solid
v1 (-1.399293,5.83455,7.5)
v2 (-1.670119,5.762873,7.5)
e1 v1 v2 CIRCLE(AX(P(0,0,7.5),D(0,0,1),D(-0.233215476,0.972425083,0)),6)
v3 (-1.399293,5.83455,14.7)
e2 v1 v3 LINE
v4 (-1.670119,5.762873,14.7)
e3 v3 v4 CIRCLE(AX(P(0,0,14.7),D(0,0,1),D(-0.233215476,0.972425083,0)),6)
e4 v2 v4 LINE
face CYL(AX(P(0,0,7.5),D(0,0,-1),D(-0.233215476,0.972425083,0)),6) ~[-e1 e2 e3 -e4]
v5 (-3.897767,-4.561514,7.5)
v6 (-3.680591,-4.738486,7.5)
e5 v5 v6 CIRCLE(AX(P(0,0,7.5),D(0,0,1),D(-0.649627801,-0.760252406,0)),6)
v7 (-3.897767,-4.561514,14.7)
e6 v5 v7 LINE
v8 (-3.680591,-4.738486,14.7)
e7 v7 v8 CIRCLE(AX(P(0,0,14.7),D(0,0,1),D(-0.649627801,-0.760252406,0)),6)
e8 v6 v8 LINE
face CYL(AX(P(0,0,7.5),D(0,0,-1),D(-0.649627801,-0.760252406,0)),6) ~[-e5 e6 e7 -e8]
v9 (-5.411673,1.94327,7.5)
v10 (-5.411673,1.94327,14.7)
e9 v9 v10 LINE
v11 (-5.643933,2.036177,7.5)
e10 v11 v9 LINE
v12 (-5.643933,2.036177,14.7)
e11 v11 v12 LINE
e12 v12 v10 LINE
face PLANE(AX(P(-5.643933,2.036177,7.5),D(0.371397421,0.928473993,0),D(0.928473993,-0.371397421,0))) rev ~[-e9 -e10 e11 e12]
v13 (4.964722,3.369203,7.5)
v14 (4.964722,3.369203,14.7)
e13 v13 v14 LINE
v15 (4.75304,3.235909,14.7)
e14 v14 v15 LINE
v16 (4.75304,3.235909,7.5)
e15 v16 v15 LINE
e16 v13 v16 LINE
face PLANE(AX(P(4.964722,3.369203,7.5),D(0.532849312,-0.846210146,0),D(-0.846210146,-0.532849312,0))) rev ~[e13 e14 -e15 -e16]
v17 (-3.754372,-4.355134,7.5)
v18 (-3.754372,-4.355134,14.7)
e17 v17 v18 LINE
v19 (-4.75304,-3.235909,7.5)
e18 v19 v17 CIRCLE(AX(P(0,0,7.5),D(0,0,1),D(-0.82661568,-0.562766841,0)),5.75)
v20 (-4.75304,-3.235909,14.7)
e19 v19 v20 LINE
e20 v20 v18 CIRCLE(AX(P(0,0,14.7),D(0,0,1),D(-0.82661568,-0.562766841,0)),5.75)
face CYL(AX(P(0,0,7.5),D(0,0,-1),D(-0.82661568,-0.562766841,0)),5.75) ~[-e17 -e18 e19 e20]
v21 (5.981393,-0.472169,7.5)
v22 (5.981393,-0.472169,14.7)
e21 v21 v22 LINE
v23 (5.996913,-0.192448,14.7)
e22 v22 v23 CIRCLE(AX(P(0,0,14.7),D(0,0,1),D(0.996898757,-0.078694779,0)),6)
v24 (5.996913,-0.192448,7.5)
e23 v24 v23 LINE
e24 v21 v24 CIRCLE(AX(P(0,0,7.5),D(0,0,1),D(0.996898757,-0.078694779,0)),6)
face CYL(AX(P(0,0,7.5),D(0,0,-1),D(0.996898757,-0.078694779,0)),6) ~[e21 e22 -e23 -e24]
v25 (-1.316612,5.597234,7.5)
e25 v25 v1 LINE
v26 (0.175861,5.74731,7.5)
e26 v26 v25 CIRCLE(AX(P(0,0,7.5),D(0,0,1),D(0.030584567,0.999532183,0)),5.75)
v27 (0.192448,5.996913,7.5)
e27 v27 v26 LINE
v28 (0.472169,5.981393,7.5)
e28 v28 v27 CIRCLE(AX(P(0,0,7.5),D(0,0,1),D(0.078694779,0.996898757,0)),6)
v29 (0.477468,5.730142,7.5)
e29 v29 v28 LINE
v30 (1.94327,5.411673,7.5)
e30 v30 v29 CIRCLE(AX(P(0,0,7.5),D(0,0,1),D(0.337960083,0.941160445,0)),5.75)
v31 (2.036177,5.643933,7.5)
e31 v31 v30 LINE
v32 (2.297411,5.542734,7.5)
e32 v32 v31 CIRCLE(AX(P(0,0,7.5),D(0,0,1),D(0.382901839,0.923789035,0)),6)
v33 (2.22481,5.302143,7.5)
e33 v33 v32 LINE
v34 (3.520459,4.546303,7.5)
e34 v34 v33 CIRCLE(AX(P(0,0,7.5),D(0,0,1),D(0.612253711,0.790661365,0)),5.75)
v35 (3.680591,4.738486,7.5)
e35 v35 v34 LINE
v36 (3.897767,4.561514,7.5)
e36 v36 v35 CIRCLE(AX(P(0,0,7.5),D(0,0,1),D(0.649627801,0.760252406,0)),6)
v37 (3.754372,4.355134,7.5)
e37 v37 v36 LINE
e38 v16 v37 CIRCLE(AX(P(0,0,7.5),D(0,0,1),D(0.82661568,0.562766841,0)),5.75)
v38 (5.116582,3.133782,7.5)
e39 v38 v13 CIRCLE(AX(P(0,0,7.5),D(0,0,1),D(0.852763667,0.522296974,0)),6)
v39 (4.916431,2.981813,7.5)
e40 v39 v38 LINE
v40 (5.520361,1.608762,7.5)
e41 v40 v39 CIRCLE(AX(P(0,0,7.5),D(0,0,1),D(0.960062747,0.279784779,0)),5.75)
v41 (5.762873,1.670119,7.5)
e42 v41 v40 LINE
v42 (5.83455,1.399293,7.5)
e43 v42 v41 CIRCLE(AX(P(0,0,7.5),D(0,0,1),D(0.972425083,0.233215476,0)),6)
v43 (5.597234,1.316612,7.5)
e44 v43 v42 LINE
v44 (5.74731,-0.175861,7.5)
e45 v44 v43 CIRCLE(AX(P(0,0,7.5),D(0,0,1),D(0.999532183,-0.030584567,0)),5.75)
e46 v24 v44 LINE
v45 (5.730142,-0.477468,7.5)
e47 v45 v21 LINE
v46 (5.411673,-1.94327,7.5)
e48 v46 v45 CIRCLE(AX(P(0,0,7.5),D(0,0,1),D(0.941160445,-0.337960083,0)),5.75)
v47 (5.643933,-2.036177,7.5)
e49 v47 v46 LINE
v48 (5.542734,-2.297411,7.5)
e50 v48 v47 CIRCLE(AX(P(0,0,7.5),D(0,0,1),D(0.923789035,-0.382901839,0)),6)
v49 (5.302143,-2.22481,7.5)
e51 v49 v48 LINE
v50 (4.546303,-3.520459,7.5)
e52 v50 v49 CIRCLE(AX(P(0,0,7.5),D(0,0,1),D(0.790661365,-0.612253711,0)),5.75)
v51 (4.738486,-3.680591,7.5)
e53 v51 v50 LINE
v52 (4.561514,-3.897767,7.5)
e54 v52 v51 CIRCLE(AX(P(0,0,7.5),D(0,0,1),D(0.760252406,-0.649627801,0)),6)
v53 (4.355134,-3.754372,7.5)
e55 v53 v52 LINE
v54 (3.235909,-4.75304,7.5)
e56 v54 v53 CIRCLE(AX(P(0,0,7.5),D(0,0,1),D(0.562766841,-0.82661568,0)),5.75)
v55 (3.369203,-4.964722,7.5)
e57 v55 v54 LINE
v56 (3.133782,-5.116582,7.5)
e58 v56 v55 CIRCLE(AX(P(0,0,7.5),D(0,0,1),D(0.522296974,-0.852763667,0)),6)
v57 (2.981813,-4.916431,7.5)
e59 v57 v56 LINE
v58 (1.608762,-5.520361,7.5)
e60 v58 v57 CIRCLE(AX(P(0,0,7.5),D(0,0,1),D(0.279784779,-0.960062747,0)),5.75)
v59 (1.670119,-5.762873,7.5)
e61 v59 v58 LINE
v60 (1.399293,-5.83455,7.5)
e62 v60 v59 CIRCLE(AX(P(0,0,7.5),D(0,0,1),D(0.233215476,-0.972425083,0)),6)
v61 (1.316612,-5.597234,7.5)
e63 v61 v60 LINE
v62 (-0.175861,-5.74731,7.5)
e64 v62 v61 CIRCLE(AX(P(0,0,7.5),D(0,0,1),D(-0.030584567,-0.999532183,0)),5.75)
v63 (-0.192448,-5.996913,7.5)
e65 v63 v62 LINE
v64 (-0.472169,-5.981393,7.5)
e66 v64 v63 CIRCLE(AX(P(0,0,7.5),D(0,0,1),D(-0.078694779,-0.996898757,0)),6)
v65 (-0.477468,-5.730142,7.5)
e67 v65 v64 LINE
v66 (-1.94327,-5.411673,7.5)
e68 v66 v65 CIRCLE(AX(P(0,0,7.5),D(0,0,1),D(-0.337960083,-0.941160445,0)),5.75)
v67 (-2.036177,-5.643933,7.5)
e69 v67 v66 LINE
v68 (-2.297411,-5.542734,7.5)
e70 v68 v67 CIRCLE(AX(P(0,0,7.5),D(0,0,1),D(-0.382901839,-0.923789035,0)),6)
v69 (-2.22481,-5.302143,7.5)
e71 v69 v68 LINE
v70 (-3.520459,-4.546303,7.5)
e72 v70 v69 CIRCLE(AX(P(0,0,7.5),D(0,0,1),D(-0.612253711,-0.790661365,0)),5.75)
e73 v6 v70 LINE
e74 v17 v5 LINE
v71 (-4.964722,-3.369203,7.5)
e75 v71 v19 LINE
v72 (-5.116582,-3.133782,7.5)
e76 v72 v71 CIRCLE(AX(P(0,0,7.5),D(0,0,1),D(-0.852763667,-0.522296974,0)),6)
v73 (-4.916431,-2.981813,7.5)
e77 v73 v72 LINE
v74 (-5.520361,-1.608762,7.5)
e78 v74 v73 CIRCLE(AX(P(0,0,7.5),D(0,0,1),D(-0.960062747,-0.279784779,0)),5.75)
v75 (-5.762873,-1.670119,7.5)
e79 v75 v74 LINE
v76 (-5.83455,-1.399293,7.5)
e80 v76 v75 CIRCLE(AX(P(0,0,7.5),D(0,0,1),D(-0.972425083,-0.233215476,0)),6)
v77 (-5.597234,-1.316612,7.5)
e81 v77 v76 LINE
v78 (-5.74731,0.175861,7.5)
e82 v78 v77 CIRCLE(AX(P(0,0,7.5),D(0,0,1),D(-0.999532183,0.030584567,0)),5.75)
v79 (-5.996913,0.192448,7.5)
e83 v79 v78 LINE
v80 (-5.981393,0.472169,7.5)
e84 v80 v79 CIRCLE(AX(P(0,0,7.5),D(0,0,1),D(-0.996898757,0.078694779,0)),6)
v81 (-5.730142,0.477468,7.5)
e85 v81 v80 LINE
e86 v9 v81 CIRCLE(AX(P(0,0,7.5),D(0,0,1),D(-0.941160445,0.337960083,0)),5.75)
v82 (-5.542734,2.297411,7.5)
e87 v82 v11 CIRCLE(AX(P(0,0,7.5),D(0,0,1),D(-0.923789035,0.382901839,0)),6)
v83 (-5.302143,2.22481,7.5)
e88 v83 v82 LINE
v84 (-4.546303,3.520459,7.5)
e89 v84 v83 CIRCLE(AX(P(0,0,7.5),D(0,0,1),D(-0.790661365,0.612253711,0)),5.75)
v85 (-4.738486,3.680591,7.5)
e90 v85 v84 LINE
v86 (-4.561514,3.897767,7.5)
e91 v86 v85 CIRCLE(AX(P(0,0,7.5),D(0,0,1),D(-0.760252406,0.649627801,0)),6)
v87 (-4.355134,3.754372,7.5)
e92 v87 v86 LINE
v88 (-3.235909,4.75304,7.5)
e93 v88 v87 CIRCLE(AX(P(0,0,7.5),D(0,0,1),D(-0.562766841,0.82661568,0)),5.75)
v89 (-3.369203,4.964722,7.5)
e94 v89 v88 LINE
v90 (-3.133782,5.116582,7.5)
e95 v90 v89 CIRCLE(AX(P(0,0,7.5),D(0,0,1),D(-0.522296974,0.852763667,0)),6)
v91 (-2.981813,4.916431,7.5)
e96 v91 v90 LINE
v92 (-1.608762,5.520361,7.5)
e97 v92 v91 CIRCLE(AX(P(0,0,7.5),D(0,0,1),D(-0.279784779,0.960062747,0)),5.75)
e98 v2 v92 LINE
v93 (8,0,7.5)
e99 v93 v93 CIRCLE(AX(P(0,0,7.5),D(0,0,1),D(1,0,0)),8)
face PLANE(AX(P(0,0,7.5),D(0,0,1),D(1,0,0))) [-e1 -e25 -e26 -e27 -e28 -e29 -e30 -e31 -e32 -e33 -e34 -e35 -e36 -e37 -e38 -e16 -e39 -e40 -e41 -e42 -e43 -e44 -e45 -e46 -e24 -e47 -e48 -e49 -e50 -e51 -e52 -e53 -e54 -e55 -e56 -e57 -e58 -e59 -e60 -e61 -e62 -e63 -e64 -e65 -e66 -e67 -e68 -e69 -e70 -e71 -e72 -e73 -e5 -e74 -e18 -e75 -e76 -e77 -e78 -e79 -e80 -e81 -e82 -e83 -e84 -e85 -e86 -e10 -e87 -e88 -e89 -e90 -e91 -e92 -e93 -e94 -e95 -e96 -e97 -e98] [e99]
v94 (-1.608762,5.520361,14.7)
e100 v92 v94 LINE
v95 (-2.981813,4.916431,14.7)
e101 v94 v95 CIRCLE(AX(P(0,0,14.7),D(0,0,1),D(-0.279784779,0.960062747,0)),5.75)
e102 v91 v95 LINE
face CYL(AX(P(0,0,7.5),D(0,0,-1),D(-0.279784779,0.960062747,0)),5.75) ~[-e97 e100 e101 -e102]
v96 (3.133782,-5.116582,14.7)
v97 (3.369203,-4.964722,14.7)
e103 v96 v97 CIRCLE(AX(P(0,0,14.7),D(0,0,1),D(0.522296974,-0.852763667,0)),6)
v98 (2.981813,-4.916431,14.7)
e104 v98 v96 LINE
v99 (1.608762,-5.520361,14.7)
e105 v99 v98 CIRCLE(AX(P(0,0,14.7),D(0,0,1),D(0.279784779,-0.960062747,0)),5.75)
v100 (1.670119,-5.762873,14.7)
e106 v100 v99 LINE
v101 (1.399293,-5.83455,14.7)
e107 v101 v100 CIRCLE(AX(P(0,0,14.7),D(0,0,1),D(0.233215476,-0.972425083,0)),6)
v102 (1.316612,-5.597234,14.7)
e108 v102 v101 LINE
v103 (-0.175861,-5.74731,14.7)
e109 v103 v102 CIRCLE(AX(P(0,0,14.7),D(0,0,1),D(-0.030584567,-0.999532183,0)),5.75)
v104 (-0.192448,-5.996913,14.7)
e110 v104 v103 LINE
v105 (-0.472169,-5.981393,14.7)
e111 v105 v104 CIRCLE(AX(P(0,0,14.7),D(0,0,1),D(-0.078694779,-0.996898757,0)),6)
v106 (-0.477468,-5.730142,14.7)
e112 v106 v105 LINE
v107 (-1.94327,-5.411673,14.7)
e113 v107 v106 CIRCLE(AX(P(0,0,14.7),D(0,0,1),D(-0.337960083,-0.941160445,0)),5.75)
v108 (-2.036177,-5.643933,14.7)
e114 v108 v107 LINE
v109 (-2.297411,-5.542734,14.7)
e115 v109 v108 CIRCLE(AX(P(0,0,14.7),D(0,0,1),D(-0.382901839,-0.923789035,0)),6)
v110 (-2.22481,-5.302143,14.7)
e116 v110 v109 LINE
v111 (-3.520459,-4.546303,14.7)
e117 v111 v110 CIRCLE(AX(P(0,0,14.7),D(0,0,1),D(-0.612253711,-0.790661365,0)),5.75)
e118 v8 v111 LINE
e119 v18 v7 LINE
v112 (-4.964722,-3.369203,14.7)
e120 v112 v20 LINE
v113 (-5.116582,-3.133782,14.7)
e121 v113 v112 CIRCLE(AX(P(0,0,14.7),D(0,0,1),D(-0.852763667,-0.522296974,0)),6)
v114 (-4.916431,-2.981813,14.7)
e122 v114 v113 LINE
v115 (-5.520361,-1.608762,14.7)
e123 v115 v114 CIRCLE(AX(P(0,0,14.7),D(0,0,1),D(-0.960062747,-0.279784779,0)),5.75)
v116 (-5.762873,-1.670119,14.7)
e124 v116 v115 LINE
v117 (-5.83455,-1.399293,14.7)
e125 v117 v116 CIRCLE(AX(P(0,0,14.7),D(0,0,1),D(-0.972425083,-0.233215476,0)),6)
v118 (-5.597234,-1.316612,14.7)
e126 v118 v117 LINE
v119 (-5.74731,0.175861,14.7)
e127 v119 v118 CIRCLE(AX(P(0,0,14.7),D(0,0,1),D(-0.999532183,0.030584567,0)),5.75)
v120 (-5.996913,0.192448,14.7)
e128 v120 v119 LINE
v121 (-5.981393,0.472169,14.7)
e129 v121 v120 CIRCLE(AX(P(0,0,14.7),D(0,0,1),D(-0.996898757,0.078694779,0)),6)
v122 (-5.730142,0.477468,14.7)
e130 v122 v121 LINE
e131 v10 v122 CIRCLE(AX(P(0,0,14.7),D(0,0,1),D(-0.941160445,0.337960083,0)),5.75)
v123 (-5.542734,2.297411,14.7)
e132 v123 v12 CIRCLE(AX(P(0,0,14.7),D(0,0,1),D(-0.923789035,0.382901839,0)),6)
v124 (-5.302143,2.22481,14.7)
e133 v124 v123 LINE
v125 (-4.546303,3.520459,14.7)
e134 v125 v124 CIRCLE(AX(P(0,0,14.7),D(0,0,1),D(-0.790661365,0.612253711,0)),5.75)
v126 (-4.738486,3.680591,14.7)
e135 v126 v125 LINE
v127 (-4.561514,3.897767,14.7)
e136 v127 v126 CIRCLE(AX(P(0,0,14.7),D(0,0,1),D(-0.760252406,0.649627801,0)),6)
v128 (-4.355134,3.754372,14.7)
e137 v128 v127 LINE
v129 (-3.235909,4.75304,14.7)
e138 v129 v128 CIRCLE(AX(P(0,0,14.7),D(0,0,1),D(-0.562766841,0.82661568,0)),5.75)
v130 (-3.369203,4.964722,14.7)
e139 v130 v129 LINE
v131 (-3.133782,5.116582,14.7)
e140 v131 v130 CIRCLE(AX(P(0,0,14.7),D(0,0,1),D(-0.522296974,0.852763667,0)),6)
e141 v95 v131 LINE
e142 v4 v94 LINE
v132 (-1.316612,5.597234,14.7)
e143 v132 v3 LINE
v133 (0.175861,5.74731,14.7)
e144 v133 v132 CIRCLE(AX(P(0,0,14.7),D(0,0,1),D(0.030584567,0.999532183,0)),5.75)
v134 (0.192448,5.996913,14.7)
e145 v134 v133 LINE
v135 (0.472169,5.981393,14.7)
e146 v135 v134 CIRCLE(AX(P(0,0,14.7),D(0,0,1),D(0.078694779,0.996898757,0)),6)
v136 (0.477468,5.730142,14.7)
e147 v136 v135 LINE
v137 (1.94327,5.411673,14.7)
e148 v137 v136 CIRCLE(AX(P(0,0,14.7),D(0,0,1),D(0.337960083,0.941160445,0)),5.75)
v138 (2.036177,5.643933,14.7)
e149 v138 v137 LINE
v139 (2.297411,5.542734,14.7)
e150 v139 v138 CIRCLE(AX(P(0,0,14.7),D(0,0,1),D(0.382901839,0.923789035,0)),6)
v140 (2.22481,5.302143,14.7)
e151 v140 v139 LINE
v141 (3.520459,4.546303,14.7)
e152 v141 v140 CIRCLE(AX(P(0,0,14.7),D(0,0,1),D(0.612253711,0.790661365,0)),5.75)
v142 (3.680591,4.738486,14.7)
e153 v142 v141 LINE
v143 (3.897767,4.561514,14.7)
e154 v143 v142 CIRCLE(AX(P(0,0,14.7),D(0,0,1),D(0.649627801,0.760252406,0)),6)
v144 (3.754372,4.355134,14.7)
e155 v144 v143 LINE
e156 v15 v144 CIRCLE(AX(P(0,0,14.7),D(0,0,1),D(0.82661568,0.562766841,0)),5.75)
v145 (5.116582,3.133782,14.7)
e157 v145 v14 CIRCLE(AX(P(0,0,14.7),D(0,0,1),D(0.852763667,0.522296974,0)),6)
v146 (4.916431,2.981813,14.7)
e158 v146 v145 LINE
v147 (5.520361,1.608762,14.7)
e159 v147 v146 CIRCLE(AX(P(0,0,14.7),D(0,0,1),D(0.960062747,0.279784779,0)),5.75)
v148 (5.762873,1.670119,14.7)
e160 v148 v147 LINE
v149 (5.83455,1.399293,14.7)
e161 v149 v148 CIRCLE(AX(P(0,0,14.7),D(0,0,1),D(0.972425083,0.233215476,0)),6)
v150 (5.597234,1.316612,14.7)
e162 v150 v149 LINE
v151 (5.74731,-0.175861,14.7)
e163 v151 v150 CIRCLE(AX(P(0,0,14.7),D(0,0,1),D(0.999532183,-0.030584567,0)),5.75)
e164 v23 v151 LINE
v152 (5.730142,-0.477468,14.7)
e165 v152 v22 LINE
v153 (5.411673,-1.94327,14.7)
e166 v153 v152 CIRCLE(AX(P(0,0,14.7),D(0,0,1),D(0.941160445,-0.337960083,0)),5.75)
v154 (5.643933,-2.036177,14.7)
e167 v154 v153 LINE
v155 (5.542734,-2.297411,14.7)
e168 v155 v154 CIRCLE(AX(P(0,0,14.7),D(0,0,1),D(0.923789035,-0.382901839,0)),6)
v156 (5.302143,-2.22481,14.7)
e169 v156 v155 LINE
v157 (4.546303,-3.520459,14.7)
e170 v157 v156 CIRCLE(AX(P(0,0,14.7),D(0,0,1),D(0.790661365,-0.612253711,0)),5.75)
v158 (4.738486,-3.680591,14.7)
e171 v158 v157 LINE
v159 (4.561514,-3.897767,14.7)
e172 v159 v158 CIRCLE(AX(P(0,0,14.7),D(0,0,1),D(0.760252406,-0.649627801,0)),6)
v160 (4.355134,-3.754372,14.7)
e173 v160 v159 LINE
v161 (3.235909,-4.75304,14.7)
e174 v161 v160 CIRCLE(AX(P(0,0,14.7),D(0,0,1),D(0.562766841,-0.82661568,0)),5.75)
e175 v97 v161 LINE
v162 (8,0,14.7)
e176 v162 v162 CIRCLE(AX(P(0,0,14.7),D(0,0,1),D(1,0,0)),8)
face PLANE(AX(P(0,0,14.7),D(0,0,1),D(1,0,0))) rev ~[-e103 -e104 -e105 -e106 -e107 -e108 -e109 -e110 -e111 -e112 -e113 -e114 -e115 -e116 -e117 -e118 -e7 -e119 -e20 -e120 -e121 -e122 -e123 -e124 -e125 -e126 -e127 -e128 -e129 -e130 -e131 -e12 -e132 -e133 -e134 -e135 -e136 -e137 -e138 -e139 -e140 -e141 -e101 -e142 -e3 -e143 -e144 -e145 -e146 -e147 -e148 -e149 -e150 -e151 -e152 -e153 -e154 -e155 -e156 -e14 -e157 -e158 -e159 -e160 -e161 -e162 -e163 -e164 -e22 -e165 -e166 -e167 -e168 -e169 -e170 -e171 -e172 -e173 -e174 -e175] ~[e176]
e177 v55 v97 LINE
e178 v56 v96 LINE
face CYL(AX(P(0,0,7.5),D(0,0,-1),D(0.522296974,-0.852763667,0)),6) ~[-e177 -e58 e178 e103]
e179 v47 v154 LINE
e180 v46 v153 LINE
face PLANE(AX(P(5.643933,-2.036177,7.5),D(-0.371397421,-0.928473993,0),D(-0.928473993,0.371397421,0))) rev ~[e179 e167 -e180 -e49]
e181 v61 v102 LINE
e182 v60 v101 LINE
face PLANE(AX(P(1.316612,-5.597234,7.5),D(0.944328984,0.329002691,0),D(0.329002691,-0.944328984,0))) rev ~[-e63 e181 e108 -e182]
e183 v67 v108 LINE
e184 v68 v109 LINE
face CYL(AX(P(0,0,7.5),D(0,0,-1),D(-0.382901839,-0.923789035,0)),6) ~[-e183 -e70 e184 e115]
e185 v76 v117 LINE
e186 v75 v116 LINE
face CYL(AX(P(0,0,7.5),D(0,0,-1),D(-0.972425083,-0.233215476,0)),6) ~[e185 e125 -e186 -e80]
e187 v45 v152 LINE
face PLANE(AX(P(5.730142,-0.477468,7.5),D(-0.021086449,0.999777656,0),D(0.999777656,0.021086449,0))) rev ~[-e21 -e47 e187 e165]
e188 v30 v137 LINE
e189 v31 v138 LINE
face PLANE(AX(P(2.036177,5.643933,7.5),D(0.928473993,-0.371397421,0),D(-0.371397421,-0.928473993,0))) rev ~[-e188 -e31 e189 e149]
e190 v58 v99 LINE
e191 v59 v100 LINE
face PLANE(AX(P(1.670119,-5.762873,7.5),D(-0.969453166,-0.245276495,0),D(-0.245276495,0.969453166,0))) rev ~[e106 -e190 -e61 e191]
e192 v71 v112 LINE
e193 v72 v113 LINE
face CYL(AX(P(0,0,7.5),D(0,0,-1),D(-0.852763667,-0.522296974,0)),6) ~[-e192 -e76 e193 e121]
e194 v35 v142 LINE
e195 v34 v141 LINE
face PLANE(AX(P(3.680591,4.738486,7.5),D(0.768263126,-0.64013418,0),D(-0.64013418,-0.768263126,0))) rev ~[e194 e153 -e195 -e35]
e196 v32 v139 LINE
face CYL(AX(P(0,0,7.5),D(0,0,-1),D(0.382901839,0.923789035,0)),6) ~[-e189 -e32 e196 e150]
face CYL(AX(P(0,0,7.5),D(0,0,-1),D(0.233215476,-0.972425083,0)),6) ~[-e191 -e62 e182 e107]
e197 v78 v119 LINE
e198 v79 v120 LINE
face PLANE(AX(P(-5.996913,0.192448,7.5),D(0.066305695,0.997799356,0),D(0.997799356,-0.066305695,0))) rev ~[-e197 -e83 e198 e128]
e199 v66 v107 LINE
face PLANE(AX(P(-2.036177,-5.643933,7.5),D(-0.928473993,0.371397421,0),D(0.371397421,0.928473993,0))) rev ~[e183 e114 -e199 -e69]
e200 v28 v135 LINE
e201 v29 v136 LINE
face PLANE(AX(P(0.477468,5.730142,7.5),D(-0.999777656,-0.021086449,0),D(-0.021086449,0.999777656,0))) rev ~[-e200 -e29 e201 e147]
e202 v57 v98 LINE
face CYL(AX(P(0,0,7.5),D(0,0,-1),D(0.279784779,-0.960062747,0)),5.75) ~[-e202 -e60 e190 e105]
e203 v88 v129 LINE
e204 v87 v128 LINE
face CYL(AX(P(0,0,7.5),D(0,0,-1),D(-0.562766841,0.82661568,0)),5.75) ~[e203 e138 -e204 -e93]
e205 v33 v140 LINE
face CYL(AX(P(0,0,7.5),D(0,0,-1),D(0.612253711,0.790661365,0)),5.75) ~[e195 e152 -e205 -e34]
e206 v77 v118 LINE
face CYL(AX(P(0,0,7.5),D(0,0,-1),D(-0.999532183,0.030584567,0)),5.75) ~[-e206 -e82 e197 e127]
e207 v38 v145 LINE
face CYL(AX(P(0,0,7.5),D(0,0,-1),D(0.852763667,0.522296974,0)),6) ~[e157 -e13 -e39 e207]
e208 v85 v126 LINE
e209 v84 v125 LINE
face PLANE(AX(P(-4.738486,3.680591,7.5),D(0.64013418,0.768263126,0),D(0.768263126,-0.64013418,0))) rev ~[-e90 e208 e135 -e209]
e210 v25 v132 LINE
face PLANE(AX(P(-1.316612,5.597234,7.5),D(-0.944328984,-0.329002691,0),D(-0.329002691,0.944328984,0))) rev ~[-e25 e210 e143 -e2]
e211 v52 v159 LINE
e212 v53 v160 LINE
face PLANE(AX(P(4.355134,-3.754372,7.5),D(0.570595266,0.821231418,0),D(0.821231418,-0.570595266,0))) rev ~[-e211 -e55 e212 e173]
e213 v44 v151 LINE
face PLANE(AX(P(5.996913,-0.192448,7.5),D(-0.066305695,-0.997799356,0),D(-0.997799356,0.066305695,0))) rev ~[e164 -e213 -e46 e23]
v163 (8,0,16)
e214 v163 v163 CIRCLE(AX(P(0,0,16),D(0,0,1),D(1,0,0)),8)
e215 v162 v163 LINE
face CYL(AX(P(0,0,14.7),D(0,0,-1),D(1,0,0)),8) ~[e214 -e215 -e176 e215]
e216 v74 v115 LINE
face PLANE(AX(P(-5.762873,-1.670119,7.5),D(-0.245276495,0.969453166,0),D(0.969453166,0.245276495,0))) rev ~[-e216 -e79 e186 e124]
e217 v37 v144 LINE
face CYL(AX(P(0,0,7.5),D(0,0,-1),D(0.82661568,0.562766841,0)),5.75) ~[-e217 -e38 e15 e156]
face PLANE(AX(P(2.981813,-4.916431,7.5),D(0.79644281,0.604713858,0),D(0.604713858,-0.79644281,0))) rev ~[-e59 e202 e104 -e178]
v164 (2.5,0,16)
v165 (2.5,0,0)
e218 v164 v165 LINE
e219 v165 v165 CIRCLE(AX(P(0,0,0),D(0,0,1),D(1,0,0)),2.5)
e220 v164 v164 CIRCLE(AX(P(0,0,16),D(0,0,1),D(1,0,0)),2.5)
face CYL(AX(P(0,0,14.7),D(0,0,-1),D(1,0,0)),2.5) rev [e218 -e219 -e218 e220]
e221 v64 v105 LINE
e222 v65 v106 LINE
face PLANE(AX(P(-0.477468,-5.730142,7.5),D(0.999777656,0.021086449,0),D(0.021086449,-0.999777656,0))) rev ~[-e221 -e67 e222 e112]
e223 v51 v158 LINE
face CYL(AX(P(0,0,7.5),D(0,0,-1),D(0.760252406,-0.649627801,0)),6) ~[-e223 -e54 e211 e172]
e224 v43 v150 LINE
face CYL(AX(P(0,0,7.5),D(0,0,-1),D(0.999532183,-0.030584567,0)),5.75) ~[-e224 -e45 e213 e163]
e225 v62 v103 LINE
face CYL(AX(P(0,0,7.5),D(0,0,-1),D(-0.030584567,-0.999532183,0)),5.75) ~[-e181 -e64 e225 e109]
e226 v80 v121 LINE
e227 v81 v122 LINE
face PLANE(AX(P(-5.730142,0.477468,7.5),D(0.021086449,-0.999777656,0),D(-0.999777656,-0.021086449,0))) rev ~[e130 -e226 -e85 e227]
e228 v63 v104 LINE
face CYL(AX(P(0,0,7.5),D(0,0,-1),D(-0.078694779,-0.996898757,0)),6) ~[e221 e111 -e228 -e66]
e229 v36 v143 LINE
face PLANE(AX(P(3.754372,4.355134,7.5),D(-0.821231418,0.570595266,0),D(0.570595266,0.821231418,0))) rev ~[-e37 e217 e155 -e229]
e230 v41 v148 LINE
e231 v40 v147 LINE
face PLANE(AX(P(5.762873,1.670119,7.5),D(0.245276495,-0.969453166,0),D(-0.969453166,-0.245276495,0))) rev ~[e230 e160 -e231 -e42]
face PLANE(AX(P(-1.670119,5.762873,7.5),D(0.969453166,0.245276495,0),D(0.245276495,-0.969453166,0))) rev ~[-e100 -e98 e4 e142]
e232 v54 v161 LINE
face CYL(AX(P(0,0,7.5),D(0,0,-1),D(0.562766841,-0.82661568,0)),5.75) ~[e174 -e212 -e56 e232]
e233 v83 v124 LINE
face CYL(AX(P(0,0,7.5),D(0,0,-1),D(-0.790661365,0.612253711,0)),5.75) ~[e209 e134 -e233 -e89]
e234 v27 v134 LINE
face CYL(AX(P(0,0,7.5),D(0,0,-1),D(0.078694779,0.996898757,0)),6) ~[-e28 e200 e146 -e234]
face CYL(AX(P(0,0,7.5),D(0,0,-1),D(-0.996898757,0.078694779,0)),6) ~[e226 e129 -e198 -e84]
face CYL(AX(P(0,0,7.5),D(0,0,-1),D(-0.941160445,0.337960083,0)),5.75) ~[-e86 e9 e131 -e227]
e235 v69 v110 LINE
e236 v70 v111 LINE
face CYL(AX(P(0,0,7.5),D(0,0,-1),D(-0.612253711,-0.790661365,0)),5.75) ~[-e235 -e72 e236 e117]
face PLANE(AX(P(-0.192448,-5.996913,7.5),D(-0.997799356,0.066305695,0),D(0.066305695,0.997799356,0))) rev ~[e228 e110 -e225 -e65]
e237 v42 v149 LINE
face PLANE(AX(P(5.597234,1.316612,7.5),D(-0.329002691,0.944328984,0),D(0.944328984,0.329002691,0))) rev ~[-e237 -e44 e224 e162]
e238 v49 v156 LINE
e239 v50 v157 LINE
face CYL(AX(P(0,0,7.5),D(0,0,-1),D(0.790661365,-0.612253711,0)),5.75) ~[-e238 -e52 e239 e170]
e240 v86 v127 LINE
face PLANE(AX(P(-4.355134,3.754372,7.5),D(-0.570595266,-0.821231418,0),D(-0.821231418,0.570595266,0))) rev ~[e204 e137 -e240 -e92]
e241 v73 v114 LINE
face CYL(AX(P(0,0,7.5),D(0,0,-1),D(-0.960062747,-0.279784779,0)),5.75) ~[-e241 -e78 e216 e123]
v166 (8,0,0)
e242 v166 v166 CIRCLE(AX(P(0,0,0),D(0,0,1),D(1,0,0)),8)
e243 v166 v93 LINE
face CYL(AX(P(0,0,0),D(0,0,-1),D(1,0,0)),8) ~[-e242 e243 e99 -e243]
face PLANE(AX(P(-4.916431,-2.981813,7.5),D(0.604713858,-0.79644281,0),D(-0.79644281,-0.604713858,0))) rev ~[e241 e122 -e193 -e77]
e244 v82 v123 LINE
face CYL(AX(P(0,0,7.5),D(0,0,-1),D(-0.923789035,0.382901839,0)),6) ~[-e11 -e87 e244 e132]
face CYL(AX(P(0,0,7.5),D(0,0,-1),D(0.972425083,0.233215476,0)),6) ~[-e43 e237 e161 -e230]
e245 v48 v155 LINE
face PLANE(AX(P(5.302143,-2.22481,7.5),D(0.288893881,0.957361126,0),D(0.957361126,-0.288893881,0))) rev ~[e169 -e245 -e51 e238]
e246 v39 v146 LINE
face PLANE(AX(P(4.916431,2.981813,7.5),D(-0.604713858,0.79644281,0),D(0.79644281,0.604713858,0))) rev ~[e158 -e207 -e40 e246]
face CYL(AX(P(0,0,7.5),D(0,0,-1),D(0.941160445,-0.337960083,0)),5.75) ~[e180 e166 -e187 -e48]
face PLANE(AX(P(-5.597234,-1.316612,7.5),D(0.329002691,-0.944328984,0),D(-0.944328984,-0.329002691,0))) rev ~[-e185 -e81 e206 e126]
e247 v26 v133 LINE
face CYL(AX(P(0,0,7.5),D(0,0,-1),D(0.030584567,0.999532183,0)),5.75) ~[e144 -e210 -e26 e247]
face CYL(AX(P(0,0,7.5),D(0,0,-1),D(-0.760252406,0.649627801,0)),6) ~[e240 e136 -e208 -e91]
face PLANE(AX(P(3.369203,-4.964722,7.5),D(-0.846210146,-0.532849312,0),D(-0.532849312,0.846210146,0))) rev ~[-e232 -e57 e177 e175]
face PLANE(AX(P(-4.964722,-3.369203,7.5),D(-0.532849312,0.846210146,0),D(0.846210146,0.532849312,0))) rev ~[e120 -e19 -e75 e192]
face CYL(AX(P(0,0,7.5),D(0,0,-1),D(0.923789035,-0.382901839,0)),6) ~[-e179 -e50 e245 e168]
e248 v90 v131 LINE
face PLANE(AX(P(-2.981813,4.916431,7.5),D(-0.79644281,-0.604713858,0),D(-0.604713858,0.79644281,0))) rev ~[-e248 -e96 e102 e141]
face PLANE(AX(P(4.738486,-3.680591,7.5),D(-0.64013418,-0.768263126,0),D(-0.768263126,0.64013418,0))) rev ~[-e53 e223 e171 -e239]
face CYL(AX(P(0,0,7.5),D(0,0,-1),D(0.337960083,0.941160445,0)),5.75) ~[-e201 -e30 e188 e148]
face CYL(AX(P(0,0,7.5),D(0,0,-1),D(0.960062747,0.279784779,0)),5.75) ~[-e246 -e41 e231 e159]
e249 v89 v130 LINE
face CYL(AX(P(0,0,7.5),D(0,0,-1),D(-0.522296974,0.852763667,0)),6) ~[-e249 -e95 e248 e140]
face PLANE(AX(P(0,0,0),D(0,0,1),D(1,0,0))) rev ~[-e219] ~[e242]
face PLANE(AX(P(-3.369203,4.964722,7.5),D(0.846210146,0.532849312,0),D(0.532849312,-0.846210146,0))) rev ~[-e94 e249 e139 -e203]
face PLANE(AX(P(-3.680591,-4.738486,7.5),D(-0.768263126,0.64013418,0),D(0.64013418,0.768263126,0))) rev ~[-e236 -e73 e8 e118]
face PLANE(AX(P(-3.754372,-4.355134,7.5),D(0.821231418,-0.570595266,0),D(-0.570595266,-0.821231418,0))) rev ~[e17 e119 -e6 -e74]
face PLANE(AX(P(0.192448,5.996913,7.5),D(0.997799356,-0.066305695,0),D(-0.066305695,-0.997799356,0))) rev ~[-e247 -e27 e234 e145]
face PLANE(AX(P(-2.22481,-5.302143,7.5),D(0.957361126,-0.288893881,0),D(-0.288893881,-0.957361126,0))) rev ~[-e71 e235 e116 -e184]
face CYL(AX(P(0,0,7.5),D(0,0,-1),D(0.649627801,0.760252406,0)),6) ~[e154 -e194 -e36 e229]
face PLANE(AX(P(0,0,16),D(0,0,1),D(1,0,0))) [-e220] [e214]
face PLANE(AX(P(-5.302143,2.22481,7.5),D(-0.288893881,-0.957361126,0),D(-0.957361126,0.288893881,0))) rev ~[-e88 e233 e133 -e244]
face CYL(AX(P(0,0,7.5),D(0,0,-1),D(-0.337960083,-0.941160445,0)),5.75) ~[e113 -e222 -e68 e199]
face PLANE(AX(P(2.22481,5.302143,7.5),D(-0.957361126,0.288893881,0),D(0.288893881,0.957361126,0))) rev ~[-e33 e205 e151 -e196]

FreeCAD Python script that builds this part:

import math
import FreeCAD as App
import Part
import Sketcher

V = App.Vector

doc = App.newDocument("Part")
body = doc.addObject("PartDesign::Body", "Body")

# Sketch on XY plane
sketch1 = body.newObject("Sketcher::SketchObject", "Sketch")
sketch1.AttachmentSupport = (doc.getObject("XY_Plane"), [""])
sketch1.MapMode = "FlatFace"
sketch1.addGeometry([
    Part.Circle(V(0, 0, 0), V(0, 0, 1), 8),
    Part.Circle(V(0, 0, 0), V(0, 0, 1), 2.5),
], False)
sketch1.addConstraint([
    Sketcher.Constraint("Coincident", 0, 3, -1, 1),
    Sketcher.Constraint("Coincident", 1, 3, -1, 1),
    Sketcher.Constraint("Diameter", 0, 16.0),
    Sketcher.Constraint("Diameter", 1, 5.0),
])
pad1 = body.newObject("PartDesign::Pad", "Pad")
pad1.Profile = sketch1
pad1.Length = 7.5

# Sketch on XY plane
sketch2 = body.newObject("Sketcher::SketchObject", "Sketch001")
sketch2.AttachmentSupport = (doc.getObject("XY_Plane"), [""])
sketch2.MapMode = "FlatFace"
sketch2.AttachmentOffset = App.Placement(V(0, 0, 7.5), App.Rotation())
sketch2.addGeometry([
    Part.LineSegment(V(4.916431, 2.981813, 0), V(5.116582, 3.133782, 0)),  # 0
    Part.ArcOfCircle(Part.Circle(V(0, 0, 0), V(0, 0, 1), 6), math.radians(31.486454), math.radians(34.161943)),  # 1
    Part.LineSegment(V(4.964722, 3.369203, 0), V(4.75304, 3.235909, 0)),  # 2
    Part.ArcOfCircle(Part.Circle(V(0, 0, 0), V(0, 0, 1), 5.75), math.radians(34.24736), math.radians(49.236795)),  # 3
    Part.LineSegment(V(3.754372, 4.355134, 0), V(3.897767, 4.561514, 0)),  # 4
    Part.ArcOfCircle(Part.Circle(V(0, 0, 0), V(0, 0, 1), 6), math.radians(49.486454), math.radians(52.161943)),  # 5
    Part.LineSegment(V(3.680591, 4.738486, 0), V(3.520459, 4.546303, 0)),  # 6
    Part.ArcOfCircle(Part.Circle(V(0, 0, 0), V(0, 0, 1), 5.75), math.radians(52.24736), math.radians(67.236795)),  # 7
    Part.LineSegment(V(2.22481, 5.302143, 0), V(2.297411, 5.542734, 0)),  # 8
    Part.ArcOfCircle(Part.Circle(V(0, 0, 0), V(0, 0, 1), 6), math.radians(67.486455), math.radians(70.161943)),  # 9
    Part.LineSegment(V(2.036177, 5.643933, 0), V(1.94327, 5.411673, 0)),  # 10
    Part.ArcOfCircle(Part.Circle(V(0, 0, 0), V(0, 0, 1), 5.75), math.radians(70.24736), math.radians(85.236795)),  # 11
    Part.LineSegment(V(0.477468, 5.730142, 0), V(0.472169, 5.981393, 0)),  # 12
    Part.ArcOfCircle(Part.Circle(V(0, 0, 0), V(0, 0, 1), 6), math.radians(85.486454), math.radians(88.161943)),  # 13
    Part.LineSegment(V(0.192448, 5.996913, 0), V(0.175861, 5.74731, 0)),  # 14
    Part.ArcOfCircle(Part.Circle(V(0, 0, 0), V(0, 0, 1), 5.75), math.radians(88.24736), math.radians(103.236795)),  # 15
    Part.LineSegment(V(-1.316612, 5.597234, 0), V(-1.399293, 5.83455, 0)),  # 16
    Part.ArcOfCircle(Part.Circle(V(0, 0, 0), V(0, 0, 1), 6), math.radians(103.486455), math.radians(106.161943)),  # 17
    Part.LineSegment(V(-1.670119, 5.762873, 0), V(-1.608762, 5.520361, 0)),  # 18
    Part.ArcOfCircle(Part.Circle(V(0, 0, 0), V(0, 0, 1), 5.75), math.radians(106.24736), math.radians(121.236795)),  # 19
    Part.LineSegment(V(-2.981813, 4.916431, 0), V(-3.133782, 5.116582, 0)),  # 20
    Part.ArcOfCircle(Part.Circle(V(0, 0, 0), V(0, 0, 1), 6), math.radians(121.486454), math.radians(124.161943)),  # 21
    Part.LineSegment(V(-3.369203, 4.964722, 0), V(-3.235909, 4.75304, 0)),  # 22
    Part.ArcOfCircle(Part.Circle(V(0, 0, 0), V(0, 0, 1), 5.75), math.radians(124.24736), math.radians(139.236795)),  # 23
    Part.LineSegment(V(-4.355134, 3.754372, 0), V(-4.561514, 3.897767, 0)),  # 24
    Part.ArcOfCircle(Part.Circle(V(0, 0, 0), V(0, 0, 1), 6), math.radians(139.486454), math.radians(142.161943)),  # 25
    Part.LineSegment(V(-4.738486, 3.680591, 0), V(-4.546303, 3.520459, 0)),  # 26
    Part.ArcOfCircle(Part.Circle(V(0, 0, 0), V(0, 0, 1), 5.75), math.radians(142.24736), math.radians(157.236795)),  # 27
    Part.LineSegment(V(-5.302143, 2.22481, 0), V(-5.542734, 2.297411, 0)),  # 28
    Part.ArcOfCircle(Part.Circle(V(0, 0, 0), V(0, 0, 1), 6), math.radians(157.486455), math.radians(160.161943)),  # 29
    Part.LineSegment(V(-5.643933, 2.036177, 0), V(-5.411673, 1.94327, 0)),  # 30
    Part.ArcOfCircle(Part.Circle(V(0, 0, 0), V(0, 0, 1), 5.75), math.radians(160.24736), math.radians(175.236795)),  # 31
    Part.LineSegment(V(-5.730142, 0.477468, 0), V(-5.981393, 0.472169, 0)),  # 32
    Part.ArcOfCircle(Part.Circle(V(0, 0, 0), V(0, 0, 1), 6), math.radians(175.486454), math.radians(178.161943)),  # 33
    Part.LineSegment(V(-5.996913, 0.192448, 0), V(-5.74731, 0.175861, 0)),  # 34
    Part.ArcOfCircle(Part.Circle(V(0, 0, 0), V(0, 0, 1), 5.75), math.radians(178.24736), math.radians(193.236795)),  # 35
    Part.LineSegment(V(-5.597234, -1.316612, 0), V(-5.83455, -1.399293, 0)),  # 36
    Part.ArcOfCircle(Part.Circle(V(0, 0, 0), V(0, 0, 1), 6), math.radians(-166.513545), math.radians(-163.838057)),  # 37
    Part.LineSegment(V(-5.762873, -1.670119, 0), V(-5.520361, -1.608762, 0)),  # 38
    Part.ArcOfCircle(Part.Circle(V(0, 0, 0), V(0, 0, 1), 5.75), math.radians(-163.75264), math.radians(-148.763205)),  # 39
    Part.LineSegment(V(-4.916431, -2.981813, 0), V(-5.116582, -3.133782, 0)),  # 40
    Part.ArcOfCircle(Part.Circle(V(0, 0, 0), V(0, 0, 1), 6), math.radians(-148.513546), math.radians(-145.838057)),  # 41
    Part.LineSegment(V(-4.964722, -3.369203, 0), V(-4.75304, -3.235909, 0)),  # 42
    Part.ArcOfCircle(Part.Circle(V(0, 0, 0), V(0, 0, 1), 5.75), math.radians(-145.75264), math.radians(-130.763205)),  # 43
    Part.LineSegment(V(-3.754372, -4.355134, 0), V(-3.897767, -4.561514, 0)),  # 44
    Part.ArcOfCircle(Part.Circle(V(0, 0, 0), V(0, 0, 1), 6), math.radians(-130.513546), math.radians(-127.838057)),  # 45
    Part.LineSegment(V(-3.680591, -4.738486, 0), V(-3.520459, -4.546303, 0)),  # 46
    Part.ArcOfCircle(Part.Circle(V(0, 0, 0), V(0, 0, 1), 5.75), math.radians(-127.75264), math.radians(-112.763205)),  # 47
    Part.LineSegment(V(-2.22481, -5.302143, 0), V(-2.297411, -5.542734, 0)),  # 48
    Part.ArcOfCircle(Part.Circle(V(0, 0, 0), V(0, 0, 1), 6), math.radians(-112.513545), math.radians(-109.838057)),  # 49
    Part.LineSegment(V(-2.036177, -5.643933, 0), V(-1.94327, -5.411673, 0)),  # 50
    Part.ArcOfCircle(Part.Circle(V(0, 0, 0), V(0, 0, 1), 5.75), math.radians(-109.75264), math.radians(-94.763205)),  # 51
    Part.LineSegment(V(-0.477468, -5.730142, 0), V(-0.472169, -5.981393, 0)),  # 52
    Part.ArcOfCircle(Part.Circle(V(0, 0, 0), V(0, 0, 1), 6), math.radians(-94.513546), math.radians(-91.838057)),  # 53
    Part.LineSegment(V(-0.192448, -5.996913, 0), V(-0.175861, -5.74731, 0)),  # 54
    Part.ArcOfCircle(Part.Circle(V(0, 0, 0), V(0, 0, 1), 5.75), math.radians(-91.75264), math.radians(-76.763205)),  # 55
    Part.LineSegment(V(1.316612, -5.597234, 0), V(1.399293, -5.83455, 0)),  # 56
    Part.ArcOfCircle(Part.Circle(V(0, 0, 0), V(0, 0, 1), 6), math.radians(-76.513545), math.radians(-73.838057)),  # 57
    Part.LineSegment(V(1.670119, -5.762873, 0), V(1.608762, -5.520361, 0)),  # 58
    Part.ArcOfCircle(Part.Circle(V(0, 0, 0), V(0, 0, 1), 5.75), math.radians(-73.75264), math.radians(-58.763205)),  # 59
    Part.LineSegment(V(2.981813, -4.916431, 0), V(3.133782, -5.116582, 0)),  # 60
    Part.ArcOfCircle(Part.Circle(V(0, 0, 0), V(0, 0, 1), 6), math.radians(-58.513546), math.radians(-55.838057)),  # 61
    Part.LineSegment(V(3.369203, -4.964722, 0), V(3.235909, -4.75304, 0)),  # 62
    Part.ArcOfCircle(Part.Circle(V(0, 0, 0), V(0, 0, 1), 5.75), math.radians(-55.75264), math.radians(-40.763205)),  # 63
    Part.LineSegment(V(4.355134, -3.754372, 0), V(4.561514, -3.897767, 0)),  # 64
    Part.ArcOfCircle(Part.Circle(V(0, 0, 0), V(0, 0, 1), 6), math.radians(-40.513546), math.radians(-37.838057)),  # 65
    Part.LineSegment(V(4.738486, -3.680591, 0), V(4.546303, -3.520459, 0)),  # 66
    Part.ArcOfCircle(Part.Circle(V(0, 0, 0), V(0, 0, 1), 5.75), math.radians(-37.75264), math.radians(-22.763205)),  # 67
    Part.LineSegment(V(5.302143, -2.22481, 0), V(5.542734, -2.297411, 0)),  # 68
    Part.ArcOfCircle(Part.Circle(V(0, 0, 0), V(0, 0, 1), 6), math.radians(-22.513545), math.radians(-19.838057)),  # 69
    Part.LineSegment(V(5.643933, -2.036177, 0), V(5.411673, -1.94327, 0)),  # 70
    Part.ArcOfCircle(Part.Circle(V(0, 0, 0), V(0, 0, 1), 5.75), math.radians(-19.75264), math.radians(-4.763205)),  # 71
    Part.LineSegment(V(5.730142, -0.477468, 0), V(5.981393, -0.472169, 0)),  # 72
    Part.ArcOfCircle(Part.Circle(V(0, 0, 0), V(0, 0, 1), 6), math.radians(-4.513546), math.radians(-1.838057)),  # 73
    Part.LineSegment(V(5.996913, -0.192448, 0), V(5.74731, -0.175861, 0)),  # 74
    Part.ArcOfCircle(Part.Circle(V(0, 0, 0), V(0, 0, 1), 5.75), math.radians(-1.75264), math.radians(13.236795)),  # 75
    Part.LineSegment(V(5.597234, 1.316612, 0), V(5.83455, 1.399293, 0)),  # 76
    Part.ArcOfCircle(Part.Circle(V(0, 0, 0), V(0, 0, 1), 6), math.radians(13.486455), math.radians(16.161943)),  # 77
    Part.LineSegment(V(5.762873, 1.670119, 0), V(5.520361, 1.608762, 0)),  # 78
    Part.ArcOfCircle(Part.Circle(V(0, 0, 0), V(0, 0, 1), 5.75), math.radians(16.24736), math.radians(31.236795)),  # 79
    Part.Circle(V(0, 0, 0), V(0, 0, 1), 2.5),  # 80
], False)
sketch2.addConstraint([
    Sketcher.Constraint("Coincident", 0, 2, 1, 1),
    Sketcher.Constraint("Coincident", 1, 2, 2, 1),
    Sketcher.Constraint("Coincident", 2, 2, 3, 1),
    Sketcher.Constraint("Coincident", 3, 2, 4, 1),
    Sketcher.Constraint("Coincident", 4, 2, 5, 1),
    Sketcher.Constraint("Coincident", 5, 2, 6, 1),
    Sketcher.Constraint("Coincident", 6, 2, 7, 1),
    Sketcher.Constraint("Coincident", 7, 2, 8, 1),
    Sketcher.Constraint("Coincident", 8, 2, 9, 1),
    Sketcher.Constraint("Coincident", 9, 2, 10, 1),
    Sketcher.Constraint("Coincident", 10, 2, 11, 1),
    Sketcher.Constraint("Coincident", 11, 2, 12, 1),
    Sketcher.Constraint("Coincident", 12, 2, 13, 1),
    Sketcher.Constraint("Coincident", 13, 2, 14, 1),
    Sketcher.Constraint("Coincident", 14, 2, 15, 1),
    Sketcher.Constraint("Coincident", 15, 2, 16, 1),
    Sketcher.Constraint("Coincident", 16, 2, 17, 1),
    Sketcher.Constraint("Coincident", 17, 2, 18, 1),
    Sketcher.Constraint("Coincident", 18, 2, 19, 1),
    Sketcher.Constraint("Coincident", 19, 2, 20, 1),
    Sketcher.Constraint("Coincident", 20, 2, 21, 1),
    Sketcher.Constraint("Coincident", 21, 2, 22, 1),
    Sketcher.Constraint("Coincident", 22, 2, 23, 1),
    Sketcher.Constraint("Coincident", 23, 2, 24, 1),
    Sketcher.Constraint("Coincident", 24, 2, 25, 1),
    Sketcher.Constraint("Coincident", 25, 2, 26, 1),
    Sketcher.Constraint("Coincident", 26, 2, 27, 1),
    Sketcher.Constraint("Coincident", 27, 2, 28, 1),
    Sketcher.Constraint("Coincident", 28, 2, 29, 1),
    Sketcher.Constraint("Coincident", 29, 2, 30, 1),
    Sketcher.Constraint("Coincident", 30, 2, 31, 1),
    Sketcher.Constraint("Coincident", 31, 2, 32, 1),
    Sketcher.Constraint("Coincident", 32, 2, 33, 1),
    Sketcher.Constraint("Coincident", 33, 2, 34, 1),
    Sketcher.Constraint("Coincident", 34, 2, 35, 1),
    Sketcher.Constraint("Coincident", 35, 2, 36, 1),
    Sketcher.Constraint("Coincident", 36, 2, 37, 1),
    Sketcher.Constraint("Coincident", 37, 2, 38, 1),
    Sketcher.Constraint("Coincident", 38, 2, 39, 1),
    Sketcher.Constraint("Coincident", 39, 2, 40, 1),
    Sketcher.Constraint("Coincident", 40, 2, 41, 1),
    Sketcher.Constraint("Coincident", 41, 2, 42, 1),
    Sketcher.Constraint("Coincident", 42, 2, 43, 1),
    Sketcher.Constraint("Coincident", 43, 2, 44, 1),
    Sketcher.Constraint("Coincident", 44, 2, 45, 1),
    Sketcher.Constraint("Coincident", 45, 2, 46, 1),
    Sketcher.Constraint("Coincident", 46, 2, 47, 1),
    Sketcher.Constraint("Coincident", 47, 2, 48, 1),
    Sketcher.Constraint("Coincident", 48, 2, 49, 1),
    Sketcher.Constraint("Coincident", 49, 2, 50, 1),
    Sketcher.Constraint("Coincident", 50, 2, 51, 1),
    Sketcher.Constraint("Coincident", 51, 2, 52, 1),
    Sketcher.Constraint("Coincident", 52, 2, 53, 1),
    Sketcher.Constraint("Coincident", 53, 2, 54, 1),
    Sketcher.Constraint("Coincident", 54, 2, 55, 1),
    Sketcher.Constraint("Coincident", 55, 2, 56, 1),
    Sketcher.Constraint("Coincident", 56, 2, 57, 1),
    Sketcher.Constraint("Coincident", 57, 2, 58, 1),
    Sketcher.Constraint("Coincident", 58, 2, 59, 1),
    Sketcher.Constraint("Coincident", 59, 2, 60, 1),
    Sketcher.Constraint("Coincident", 60, 2, 61, 1),
    Sketcher.Constraint("Coincident", 61, 2, 62, 1),
    Sketcher.Constraint("Coincident", 62, 2, 63, 1),
    Sketcher.Constraint("Coincident", 63, 2, 64, 1),
    Sketcher.Constraint("Coincident", 64, 2, 65, 1),
    Sketcher.Constraint("Coincident", 65, 2, 66, 1),
    Sketcher.Constraint("Coincident", 66, 2, 67, 1),
    Sketcher.Constraint("Coincident", 67, 2, 68, 1),
    Sketcher.Constraint("Coincident", 68, 2, 69, 1),
    Sketcher.Constraint("Coincident", 69, 2, 70, 1),
    Sketcher.Constraint("Coincident", 70, 2, 71, 1),
    Sketcher.Constraint("Coincident", 71, 2, 72, 1),
    Sketcher.Constraint("Coincident", 72, 2, 73, 1),
    Sketcher.Constraint("Coincident", 73, 2, 74, 1),
    Sketcher.Constraint("Coincident", 74, 2, 75, 1),
    Sketcher.Constraint("Coincident", 75, 2, 76, 1),
    Sketcher.Constraint("Coincident", 76, 2, 77, 1),
    Sketcher.Constraint("Coincident", 77, 2, 78, 1),
    Sketcher.Constraint("Coincident", 78, 2, 79, 1),
    Sketcher.Constraint("Coincident", 79, 2, 0, 1),
    Sketcher.Constraint("Coincident", 1, 3, -1, 1),
    Sketcher.Constraint("Coincident", 3, 3, -1, 1),
    Sketcher.Constraint("Coincident", 5, 3, -1, 1),
    Sketcher.Constraint("Coincident", 7, 3, -1, 1),
    Sketcher.Constraint("Coincident", 9, 3, -1, 1),
    Sketcher.Constraint("Coincident", 11, 3, -1, 1),
    Sketcher.Constraint("Coincident", 13, 3, -1, 1),
    Sketcher.Constraint("Coincident", 15, 3, -1, 1),
    Sketcher.Constraint("Coincident", 17, 3, -1, 1),
    Sketcher.Constraint("Coincident", 19, 3, -1, 1),
    Sketcher.Constraint("Coincident", 21, 3, -1, 1),
    Sketcher.Constraint("Coincident", 23, 3, -1, 1),
    Sketcher.Constraint("Coincident", 25, 3, -1, 1),
    Sketcher.Constraint("Coincident", 27, 3, -1, 1),
    Sketcher.Constraint("Coincident", 29, 3, -1, 1),
    Sketcher.Constraint("Coincident", 31, 3, -1, 1),
    Sketcher.Constraint("Coincident", 33, 3, -1, 1),
    Sketcher.Constraint("Coincident", 35, 3, -1, 1),
    Sketcher.Constraint("Coincident", 37, 3, -1, 1),
    Sketcher.Constraint("Coincident", 39, 3, -1, 1),
    Sketcher.Constraint("Coincident", 41, 3, -1, 1),
    Sketcher.Constraint("Coincident", 43, 3, -1, 1),
    Sketcher.Constraint("Coincident", 45, 3, -1, 1),
    Sketcher.Constraint("Coincident", 47, 3, -1, 1),
    Sketcher.Constraint("Coincident", 49, 3, -1, 1),
    Sketcher.Constraint("Coincident", 51, 3, -1, 1),
    Sketcher.Constraint("Coincident", 53, 3, -1, 1),
    Sketcher.Constraint("Coincident", 55, 3, -1, 1),
    Sketcher.Constraint("Coincident", 57, 3, -1, 1),
    Sketcher.Constraint("Coincident", 59, 3, -1, 1),
    Sketcher.Constraint("Coincident", 61, 3, -1, 1),
    Sketcher.Constraint("Coincident", 63, 3, -1, 1),
    Sketcher.Constraint("Coincident", 65, 3, -1, 1),
    Sketcher.Constraint("Coincident", 67, 3, -1, 1),
    Sketcher.Constraint("Coincident", 69, 3, -1, 1),
    Sketcher.Constraint("Coincident", 71, 3, -1, 1),
    Sketcher.Constraint("Coincident", 73, 3, -1, 1),
    Sketcher.Constraint("Coincident", 75, 3, -1, 1),
    Sketcher.Constraint("Coincident", 77, 3, -1, 1),
    Sketcher.Constraint("Coincident", 79, 3, -1, 1),
    Sketcher.Constraint("Coincident", 80, 3, -1, 1),
    Sketcher.Constraint("Equal", 1, 5),
    Sketcher.Constraint("Equal", 3, 7),
    Sketcher.Constraint("Equal", 5, 9),
    Sketcher.Constraint("Equal", 7, 11),
    Sketcher.Constraint("Equal", 9, 13),
    Sketcher.Constraint("Equal", 11, 15),
    Sketcher.Constraint("Equal", 13, 17),
    Sketcher.Constraint("Equal", 15, 19),
    Sketcher.Constraint("Equal", 17, 21),
    Sketcher.Constraint("Equal", 19, 23),
    Sketcher.Constraint("Equal", 21, 25),
    Sketcher.Constraint("Equal", 23, 27),
    Sketcher.Constraint("Equal", 25, 29),
    Sketcher.Constraint("Equal", 27, 31),
    Sketcher.Constraint("Equal", 29, 33),
    Sketcher.Constraint("Equal", 31, 35),
    Sketcher.Constraint("Equal", 33, 37),
    Sketcher.Constraint("Equal", 35, 39),
    Sketcher.Constraint("Equal", 37, 41),
    Sketcher.Constraint("Equal", 39, 43),
    Sketcher.Constraint("Equal", 41, 45),
    Sketcher.Constraint("Equal", 43, 47),
    Sketcher.Constraint("Equal", 45, 49),
    Sketcher.Constraint("Equal", 47, 51),
    Sketcher.Constraint("Equal", 49, 53),
    Sketcher.Constraint("Equal", 51, 55),
    Sketcher.Constraint("Equal", 53, 57),
    Sketcher.Constraint("Equal", 55, 59),
    Sketcher.Constraint("Equal", 57, 61),
    Sketcher.Constraint("Equal", 59, 63),
    Sketcher.Constraint("Equal", 61, 65),
    Sketcher.Constraint("Equal", 63, 67),
    Sketcher.Constraint("Equal", 65, 69),
    Sketcher.Constraint("Equal", 67, 71),
    Sketcher.Constraint("Equal", 69, 73),
    Sketcher.Constraint("Equal", 71, 75),
    Sketcher.Constraint("Equal", 73, 77),
    Sketcher.Constraint("Equal", 75, 79),
    Sketcher.Constraint("Perpendicular", 0, 20),
    Sketcher.Constraint("Perpendicular", 2, 22),
    Sketcher.Constraint("Perpendicular", 4, 24),
    Sketcher.Constraint("Perpendicular", 6, 26),
    Sketcher.Constraint("Perpendicular", 8, 28),
    Sketcher.Constraint("Perpendicular", 10, 30),
    Sketcher.Constraint("Perpendicular", 12, 32),
    Sketcher.Constraint("Perpendicular", 14, 34),
    Sketcher.Constraint("Perpendicular", 16, 36),
    Sketcher.Constraint("Perpendicular", 18, 38),
    Sketcher.Constraint("Perpendicular", 20, 40),
    Sketcher.Constraint("Perpendicular", 22, 42),
    Sketcher.Constraint("Perpendicular", 24, 44),
    Sketcher.Constraint("Perpendicular", 26, 46),
    Sketcher.Constraint("Perpendicular", 28, 48),
    Sketcher.Constraint("Perpendicular", 30, 50),
    Sketcher.Constraint("Perpendicular", 32, 52),
    Sketcher.Constraint("Perpendicular", 34, 54),
    Sketcher.Constraint("Perpendicular", 36, 56),
    Sketcher.Constraint("Perpendicular", 38, 58),
    Sketcher.Constraint("Perpendicular", 40, 60),
    Sketcher.Constraint("Perpendicular", 42, 62),
    Sketcher.Constraint("Perpendicular", 44, 64),
    Sketcher.Constraint("Perpendicular", 46, 66),
    Sketcher.Constraint("Perpendicular", 48, 68),
    Sketcher.Constraint("Perpendicular", 50, 70),
    Sketcher.Constraint("Perpendicular", 52, 72),
    Sketcher.Constraint("Perpendicular", 54, 74),
    Sketcher.Constraint("Perpendicular", 56, 76),
    Sketcher.Constraint("Perpendicular", 58, 78),
    Sketcher.Constraint("Equal", 0, 4),
    Sketcher.Constraint("Equal", 2, 6),
    Sketcher.Constraint("Equal", 4, 8),
    Sketcher.Constraint("Equal", 6, 10),
    Sketcher.Constraint("Equal", 8, 12),
    Sketcher.Constraint("Equal", 10, 14),
    Sketcher.Constraint("Equal", 12, 16),
    Sketcher.Constraint("Equal", 14, 18),
    Sketcher.Constraint("Equal", 16, 20),
    Sketcher.Constraint("Equal", 20, 24),
    Sketcher.Constraint("Equal", 24, 28),
    Sketcher.Constraint("Equal", 28, 32),
    Sketcher.Constraint("Equal", 32, 36),
    Sketcher.Constraint("Equal", 40, 44),
    Sketcher.Constraint("Equal", 44, 48),
    Sketcher.Constraint("Equal", 48, 52),
    Sketcher.Constraint("Equal", 52, 56),
    Sketcher.Constraint("Equal", 60, 64),
    Sketcher.Constraint("Equal", 64, 68),
    Sketcher.Constraint("Equal", 68, 72),
    Sketcher.Constraint("Diameter", 80, 5.0),
    Sketcher.Constraint("Radius", 1, 6.0),
    Sketcher.Constraint("Radius", 3, 5.75),
    Sketcher.Constraint("DistanceX", -1, 1, 0, 2, 5.116582),
    Sketcher.Constraint("DistanceX", -1, 1, 2, 2, 4.75304),
    Sketcher.Constraint("DistanceX", -1, 1, 5, 2, 3.680591),
    Sketcher.Constraint("DistanceX", -1, 1, 6, 2, 3.520459),
    Sketcher.Constraint("DistanceX", -1, 1, 7, 2, 2.22481),
    Sketcher.Constraint("DistanceX", -1, 1, 8, 2, 2.297411),
    Sketcher.Constraint("DistanceX", -1, 1, 10, 2, 1.94327),
    Sketcher.Constraint("DistanceY", -1, 1, 11, 2, 5.730142),
    Sketcher.Constraint("DistanceX", -1, 1, 14, 2, 0.175861),
    Sketcher.Constraint("DistanceY", -1, 1, 16, 2, 5.83455),
    Sketcher.Constraint("DistanceX", 17, 2, -1, 1, 1.670119),
    Sketcher.Constraint("DistanceX", 22, 2, -1, 1, 3.235909),
    Sketcher.Constraint("DistanceY", -1, 1, 25, 2, 3.680591),
    Sketcher.Constraint("DistanceY", -1, 1, 30, 2, 1.94327),
    Sketcher.Constraint("DistanceX", 34, 2, -1, 1, 5.74731),
    Sketcher.Constraint("DistanceY", 37, 2, -1, 1, 1.670119),
    Sketcher.Constraint("DistanceX", 39, 2, -1, 1, 4.916431),
    Sketcher.Constraint("DistanceX", 42, 2, -1, 1, 4.75304),
    Sketcher.Constraint("DistanceX", 45, 2, -1, 1, 3.680591),
    Sketcher.Constraint("DistanceX", 50, 2, -1, 1, 1.94327),
    Sketcher.Constraint("DistanceX", 54, 2, -1, 1, 0.175861),
    Sketcher.Constraint("DistanceX", -1, 1, 57, 2, 1.670119),
    Sketcher.Constraint("DistanceY", 59, 2, -1, 1, 4.916431),
    Sketcher.Constraint("DistanceX", -1, 1, 62, 2, 3.235909),
    Sketcher.Constraint("DistanceY", 65, 2, -1, 1, 3.680591),
    Sketcher.Constraint("DistanceY", 70, 2, -1, 1, 1.94327),
    Sketcher.Constraint("DistanceX", -1, 1, 74, 2, 5.74731),
    Sketcher.Constraint("DistanceX", -1, 1, 76, 2, 5.83455),
    Sketcher.Constraint("DistanceY", -1, 1, 77, 2, 1.670119),
    Sketcher.Constraint("DistanceX", -1, 1, 3, 2, 3.754372),
])
pad2 = body.newObject("PartDesign::Pad", "Pad001")
pad2.Profile = sketch2
pad2.Length = 7.2

# Sketch on XY plane
sketch3 = body.newObject("Sketcher::SketchObject", "Sketch002")
sketch3.AttachmentSupport = (doc.getObject("XY_Plane"), [""])
sketch3.MapMode = "FlatFace"
sketch3.AttachmentOffset = App.Placement(V(0, 0, 14.7), App.Rotation())
sketch3.addGeometry([
    Part.Circle(V(0, 0, 0), V(0, 0, 1), 8),
    Part.Circle(V(0, 0, 0), V(0, 0, 1), 2.5),
], False)
sketch3.addConstraint([
    Sketcher.Constraint("Coincident", 0, 3, -1, 1),
    Sketcher.Constraint("Coincident", 1, 3, -1, 1),
    Sketcher.Constraint("Diameter", 0, 16.0),
    Sketcher.Constraint("Diameter", 1, 5.0),
])
pad3 = body.newObject("PartDesign::Pad", "Pad002")
pad3.Profile = sketch3
pad3.Length = 1.3

doc.recompute()
